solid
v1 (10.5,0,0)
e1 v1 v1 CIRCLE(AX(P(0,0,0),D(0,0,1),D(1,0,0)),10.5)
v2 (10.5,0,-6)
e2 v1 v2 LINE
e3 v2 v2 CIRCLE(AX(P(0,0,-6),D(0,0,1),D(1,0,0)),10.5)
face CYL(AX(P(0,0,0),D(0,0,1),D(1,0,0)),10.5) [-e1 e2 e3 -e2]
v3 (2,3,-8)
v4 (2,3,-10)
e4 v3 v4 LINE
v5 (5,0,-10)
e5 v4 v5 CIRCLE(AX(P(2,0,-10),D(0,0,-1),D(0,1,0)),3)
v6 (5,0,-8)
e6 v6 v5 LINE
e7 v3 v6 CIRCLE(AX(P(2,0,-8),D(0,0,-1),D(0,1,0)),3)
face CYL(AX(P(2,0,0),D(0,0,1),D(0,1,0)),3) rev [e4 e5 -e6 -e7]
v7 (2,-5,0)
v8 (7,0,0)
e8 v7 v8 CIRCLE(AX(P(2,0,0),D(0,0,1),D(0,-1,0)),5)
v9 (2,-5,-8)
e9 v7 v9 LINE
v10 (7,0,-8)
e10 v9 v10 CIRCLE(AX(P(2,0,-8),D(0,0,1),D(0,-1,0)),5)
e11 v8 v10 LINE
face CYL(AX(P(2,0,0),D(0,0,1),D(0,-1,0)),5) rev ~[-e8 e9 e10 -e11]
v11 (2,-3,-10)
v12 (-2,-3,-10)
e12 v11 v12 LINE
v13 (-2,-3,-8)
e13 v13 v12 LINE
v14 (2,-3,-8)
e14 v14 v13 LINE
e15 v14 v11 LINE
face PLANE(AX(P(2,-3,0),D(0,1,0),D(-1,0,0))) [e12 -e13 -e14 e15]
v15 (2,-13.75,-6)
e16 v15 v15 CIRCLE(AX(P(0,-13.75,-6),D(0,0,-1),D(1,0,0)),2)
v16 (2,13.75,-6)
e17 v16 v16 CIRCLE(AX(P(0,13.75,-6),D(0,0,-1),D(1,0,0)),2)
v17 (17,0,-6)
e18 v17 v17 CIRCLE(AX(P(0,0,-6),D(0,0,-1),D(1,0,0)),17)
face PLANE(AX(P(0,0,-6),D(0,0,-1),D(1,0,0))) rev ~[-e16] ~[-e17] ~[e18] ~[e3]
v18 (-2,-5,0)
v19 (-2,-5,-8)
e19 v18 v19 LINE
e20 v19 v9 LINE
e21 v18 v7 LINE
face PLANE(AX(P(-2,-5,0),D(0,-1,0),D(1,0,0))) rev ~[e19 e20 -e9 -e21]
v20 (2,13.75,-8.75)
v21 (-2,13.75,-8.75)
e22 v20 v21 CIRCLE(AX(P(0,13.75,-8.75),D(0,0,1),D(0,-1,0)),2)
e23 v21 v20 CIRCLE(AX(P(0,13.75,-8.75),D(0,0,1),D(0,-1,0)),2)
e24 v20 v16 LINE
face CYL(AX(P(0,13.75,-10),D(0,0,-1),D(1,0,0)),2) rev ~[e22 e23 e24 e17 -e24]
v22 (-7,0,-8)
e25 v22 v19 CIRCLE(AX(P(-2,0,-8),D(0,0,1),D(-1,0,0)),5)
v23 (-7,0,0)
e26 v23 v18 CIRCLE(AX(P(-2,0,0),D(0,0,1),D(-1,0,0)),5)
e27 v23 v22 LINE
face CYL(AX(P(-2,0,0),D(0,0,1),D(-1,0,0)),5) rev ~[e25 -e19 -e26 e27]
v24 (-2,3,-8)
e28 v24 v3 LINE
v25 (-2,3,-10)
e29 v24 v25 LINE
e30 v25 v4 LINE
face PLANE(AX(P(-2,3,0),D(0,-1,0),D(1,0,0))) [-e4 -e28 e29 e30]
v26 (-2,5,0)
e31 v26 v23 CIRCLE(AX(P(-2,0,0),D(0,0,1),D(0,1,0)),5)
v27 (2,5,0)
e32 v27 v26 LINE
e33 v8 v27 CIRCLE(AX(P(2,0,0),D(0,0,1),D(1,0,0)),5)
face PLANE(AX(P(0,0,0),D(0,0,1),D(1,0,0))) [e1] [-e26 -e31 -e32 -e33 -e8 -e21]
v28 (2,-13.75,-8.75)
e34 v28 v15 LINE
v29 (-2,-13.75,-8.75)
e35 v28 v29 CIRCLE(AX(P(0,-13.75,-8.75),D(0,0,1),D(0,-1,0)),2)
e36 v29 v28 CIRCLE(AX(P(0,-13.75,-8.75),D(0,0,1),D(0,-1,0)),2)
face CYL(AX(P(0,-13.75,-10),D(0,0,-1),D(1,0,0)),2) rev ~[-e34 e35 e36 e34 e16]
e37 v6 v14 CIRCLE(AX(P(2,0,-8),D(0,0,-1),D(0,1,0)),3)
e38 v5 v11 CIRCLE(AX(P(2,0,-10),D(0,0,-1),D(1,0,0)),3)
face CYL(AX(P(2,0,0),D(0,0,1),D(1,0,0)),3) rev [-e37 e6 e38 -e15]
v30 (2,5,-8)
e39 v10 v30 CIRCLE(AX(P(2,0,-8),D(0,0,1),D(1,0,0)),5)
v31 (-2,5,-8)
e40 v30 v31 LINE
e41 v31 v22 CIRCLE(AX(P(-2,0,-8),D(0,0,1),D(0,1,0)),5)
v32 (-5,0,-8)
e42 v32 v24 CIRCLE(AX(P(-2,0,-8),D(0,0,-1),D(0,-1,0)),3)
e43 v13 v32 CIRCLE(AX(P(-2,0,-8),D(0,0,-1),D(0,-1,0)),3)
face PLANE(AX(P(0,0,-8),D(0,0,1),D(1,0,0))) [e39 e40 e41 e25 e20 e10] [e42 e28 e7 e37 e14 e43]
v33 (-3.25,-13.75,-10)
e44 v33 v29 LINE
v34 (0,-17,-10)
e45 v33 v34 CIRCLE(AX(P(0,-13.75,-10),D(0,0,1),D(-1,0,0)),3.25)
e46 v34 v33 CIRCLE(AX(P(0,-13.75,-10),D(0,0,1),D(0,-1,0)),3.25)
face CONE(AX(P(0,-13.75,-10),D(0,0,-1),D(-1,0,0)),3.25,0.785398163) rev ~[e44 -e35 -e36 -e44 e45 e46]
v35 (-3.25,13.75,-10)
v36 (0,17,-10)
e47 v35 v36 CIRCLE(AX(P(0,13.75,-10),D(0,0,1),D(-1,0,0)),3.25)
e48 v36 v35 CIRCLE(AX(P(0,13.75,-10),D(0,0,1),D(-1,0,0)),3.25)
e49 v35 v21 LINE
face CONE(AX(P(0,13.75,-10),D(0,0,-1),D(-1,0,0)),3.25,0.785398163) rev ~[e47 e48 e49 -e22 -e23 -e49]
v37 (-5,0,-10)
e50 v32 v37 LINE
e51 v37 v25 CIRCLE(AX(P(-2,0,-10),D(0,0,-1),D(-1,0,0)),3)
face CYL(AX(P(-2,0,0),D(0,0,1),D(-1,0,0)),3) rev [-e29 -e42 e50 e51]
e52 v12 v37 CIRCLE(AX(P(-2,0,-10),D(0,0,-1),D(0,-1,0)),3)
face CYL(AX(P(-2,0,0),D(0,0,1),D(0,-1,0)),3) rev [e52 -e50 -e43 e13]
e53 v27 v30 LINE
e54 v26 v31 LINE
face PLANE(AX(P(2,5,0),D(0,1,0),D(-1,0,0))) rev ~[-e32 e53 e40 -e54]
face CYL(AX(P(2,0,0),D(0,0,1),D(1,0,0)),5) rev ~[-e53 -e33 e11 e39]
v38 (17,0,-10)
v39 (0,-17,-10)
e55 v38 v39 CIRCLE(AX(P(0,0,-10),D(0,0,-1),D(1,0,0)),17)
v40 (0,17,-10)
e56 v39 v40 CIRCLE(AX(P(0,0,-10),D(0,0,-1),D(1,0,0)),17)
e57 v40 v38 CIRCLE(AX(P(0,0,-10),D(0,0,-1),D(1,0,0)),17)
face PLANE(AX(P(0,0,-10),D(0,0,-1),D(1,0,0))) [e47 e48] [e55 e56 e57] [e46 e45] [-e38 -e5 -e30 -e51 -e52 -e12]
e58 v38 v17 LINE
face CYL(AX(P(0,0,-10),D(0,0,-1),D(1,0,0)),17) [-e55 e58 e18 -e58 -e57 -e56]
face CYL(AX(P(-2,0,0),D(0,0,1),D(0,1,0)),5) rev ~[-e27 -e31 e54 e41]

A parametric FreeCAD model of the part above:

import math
import FreeCAD as App
import Part
import Sketcher
from FreeCAD import Vector

doc = App.newDocument("Part")
params = doc.addObject("Spreadsheet::Sheet", "Params")
for row, (alias, value) in enumerate([
    ("sketch1_diameter", "21 mm"),
    ("sketch1_radius", "3 mm"),
    ("sketch1_width", "4 mm"),
    ("pad1_length", "10 mm"),
    ("sketch2_diameter", "34 mm"),
    ("sketch2_diameter2", "4 mm"),
    ("pad2_length", "4 mm"),
    ("sketch3_diameter", "4 mm"),
    ("hole_diameter", "4 mm"),
    ("hole_depth", "10 mm"),
    ("hole_csink_diameter", "6.5 mm"),
    ("sketch4_radius", "5 mm"),
    ("sketch4_radius2", "3 mm"),
    ("sketch4_width", "4 mm"),
    ("pocket1_length", "8 mm"),
], start=1):
    params.set(f"A{row}", alias)
    params.set(f"B{row}", "=" + value)
    params.setAlias(f"B{row}", alias)

body = doc.addObject("PartDesign::Body", "Body")

sketch1 = doc.addObject("Sketcher::SketchObject", "Sketch")
body.addObject(sketch1)
sketch1.AttachmentSupport = (doc.XY_Plane, [""])
sketch1.MapMode = "FlatFace"
sketch1.addGeometry([
    Part.Circle(Vector(0, 0, 0), Vector(0, 0, 1), 10.5),
    Part.ArcOfCircle(Part.Circle(Vector(-2, 0, 0), Vector(0, 0, 1), 3), math.radians(180), math.radians(270)),
    Part.ArcOfCircle(Part.Circle(Vector(-2, 0, 0), Vector(0, 0, 1), 3), math.radians(90), math.radians(180)),
    Part.LineSegment(Vector(-2, 3, 0), Vector(2, 3, 0)),
    Part.ArcOfCircle(Part.Circle(Vector(2, 0, 0), Vector(0, 0, 1), 3), math.radians(0), math.radians(90)),
    Part.ArcOfCircle(Part.Circle(Vector(2, 0, 0), Vector(0, 0, 1), 3), math.radians(-90), math.radians(0)),
    Part.LineSegment(Vector(2, -3, 0), Vector(-2, -3, 0)),
], False)
sketch1.addConstraint([
    Sketcher.Constraint("Tangent", 1, 1, 2, 2),
    Sketcher.Constraint("Tangent", 2, 1, 3, 1),
    Sketcher.Constraint("Tangent", 3, 2, 4, 2),
    Sketcher.Constraint("Tangent", 4, 1, 5, 2),
    Sketcher.Constraint("Tangent", 5, 1, 6, 1),
    Sketcher.Constraint("Tangent", 6, 2, 1, 2),
    Sketcher.Constraint("Horizontal", 3),
    Sketcher.Constraint("Horizontal", 6),
    Sketcher.Constraint("Coincident", 0, 3, -1, 1),
    Sketcher.Constraint("Equal", 1, 2),
    Sketcher.Constraint("Equal", 2, 4),
    Sketcher.Constraint("Symmetric", 1, 3, 4, 3, -1, 1),
    Sketcher.Constraint("PointOnObject", 1, 1, -1),
    Sketcher.Constraint("PointOnObject", 4, 1, -1),
    Sketcher.Constraint("Diameter", 0, 21.0),
    Sketcher.Constraint("Radius", 1, 3.0),
    Sketcher.Constraint("DistanceX", 3, 1, 3, 2, 4.0),
])
sketch1.setExpression("Constraints[14]", "Params.sketch1_diameter")
sketch1.setExpression("Constraints[15]", "Params.sketch1_radius")
sketch1.setExpression("Constraints[16]", "Params.sketch1_width")
pad1 = doc.addObject("PartDesign::Pad", "Pad")
body.addObject(pad1)
pad1.Profile = sketch1
pad1.setExpression("Length", "Params.pad1_length")
pad1.Reversed = True

sketch2 = doc.addObject("Sketcher::SketchObject", "Sketch001")
body.addObject(sketch2)
sketch2.AttachmentSupport = (doc.XY_Plane, [""])
sketch2.MapMode = "FlatFace"
sketch2.AttachmentOffset = App.Placement(Vector(0, 0, -10), App.Rotation())
sketch2.addGeometry([
    Part.Circle(Vector(0, 0, 0), Vector(0, 0, 1), 17),
    Part.Circle(Vector(0, 13.8, 0), Vector(0, 0, 1), 2),
    Part.Circle(Vector(0, 0, 0), Vector(0, 0, 1), 9.1),
    Part.Circle(Vector(0, -13.8, 0), Vector(0, 0, 1), 2),
], False)
sketch2.addConstraint([
    Sketcher.Constraint("Coincident", 0, 3, -1, 1),
    Sketcher.Constraint("Coincident", 2, 3, -1, 1),
    Sketcher.Constraint("Equal", 1, 3),
    Sketcher.Constraint("Symmetric", 1, 3, 3, 3, -1, 1),
    Sketcher.Constraint("PointOnObject", 1, 3, -2),
    Sketcher.Constraint("Diameter", 0, 34.0),
    Sketcher.Constraint("Diameter", 1, 4.0),
    Sketcher.Constraint("DistanceY", 3, 3, 1, 3, 27.5),
    Sketcher.Constraint("Diameter", 2, 18.260628),
])
sketch2.setExpression("Constraints[5]", "Params.sketch2_diameter")
sketch2.setExpression("Constraints[6]", "Params.sketch2_diameter2")
pad2 = doc.addObject("PartDesign::Pad", "Pad001")
body.addObject(pad2)
pad2.Profile = sketch2
pad2.setExpression("Length", "Params.pad2_length")

sketch3 = doc.addObject("Sketcher::SketchObject", "Sketch002")
body.addObject(sketch3)
sketch3.AttachmentSupport = (doc.XY_Plane, [""])
sketch3.MapMode = "FlatFace"
sketch3.AttachmentOffset = App.Placement(Vector(0, 0, -10), App.Rotation())
sketch3.addGeometry([
    Part.Circle(Vector(0, -13.8, 0), Vector(0, 0, 1), 2),
    Part.Circle(Vector(0, 13.8, 0), Vector(0, 0, 1), 2),
], False)
sketch3.addConstraint([
    Sketcher.Constraint("Equal", 0, 1),
    Sketcher.Constraint("Symmetric", 0, 3, 1, 3, -1, 1),
    Sketcher.Constraint("PointOnObject", 0, 3, -2),
    Sketcher.Constraint("Diameter", 0, 4.0),
    Sketcher.Constraint("DistanceY", 0, 3, 1, 3, 27.5),
])
sketch3.setExpression("Constraints[3]", "Params.sketch3_diameter")
doc.recompute()
hole = doc.addObject("PartDesign::Hole", "Hole")
body.addObject(hole)
hole.Profile = sketch3
hole.ThreadType = "None"
hole.setExpression("Diameter", "Params.hole_diameter")
hole.DepthType = "Dimension"
hole.setExpression("Depth", "Params.hole_depth")
hole.DrillPoint = "Angled"
hole.DrillPointAngle = 118
hole.HoleCutType = "Countersink"
hole.setExpression("HoleCutDiameter", "Params.hole_csink_diameter")
hole.HoleCutCountersinkAngle = 90
hole.Reversed = True

sketch4 = doc.addObject("Sketcher::SketchObject", "Sketch003")
body.addObject(sketch4)
sketch4.AttachmentSupport = (doc.XY_Plane, [""])
sketch4.MapMode = "FlatFace"
sketch4.addGeometry([
    Part.LineSegment(Vector(2, 5, 0), Vector(-2, 5, 0)),
    Part.ArcOfCircle(Part.Circle(Vector(-2, 0, 0), Vector(0, 0, 1), 5), math.radians(90), math.radians(180)),
    Part.ArcOfCircle(Part.Circle(Vector(-2, 0, 0), Vector(0, 0, 1), 5), math.radians(180), math.radians(270)),
    Part.LineSegment(Vector(-2, -5, 0), Vector(2, -5, 0)),
    Part.ArcOfCircle(Part.Circle(Vector(2, 0, 0), Vector(0, 0, 1), 5), math.radians(-90), math.radians(0)),
    Part.ArcOfCircle(Part.Circle(Vector(2, 0, 0), Vector(0, 0, 1), 5), math.radians(0), math.radians(90)),
    Part.ArcOfCircle(Part.Circle(Vector(2, 0, 0), Vector(0, 0, 1), 3), math.radians(-90), math.radians(90)),
    Part.LineSegment(Vector(2, -3, 0), Vector(-2, -3, 0)),
    Part.ArcOfCircle(Part.Circle(Vector(-2, 0, 0), Vector(0, 0, 1), 3), math.radians(90), math.radians(270)),
    Part.LineSegment(Vector(-2, 3, 0), Vector(2, 3, 0)),
], False)
sketch4.addConstraint([
    Sketcher.Constraint("Tangent", 0, 2, 1, 1),
    Sketcher.Constraint("Tangent", 1, 2, 2, 1),
    Sketcher.Constraint("Tangent", 2, 2, 3, 1),
    Sketcher.Constraint("Tangent", 3, 2, 4, 1),
    Sketcher.Constraint("Tangent", 4, 2, 5, 1),
    Sketcher.Constraint("Tangent", 5, 2, 0, 1),
    Sketcher.Constraint("Tangent", 6, 1, 7, 1),
    Sketcher.Constraint("Tangent", 7, 2, 8, 2),
    Sketcher.Constraint("Tangent", 8, 1, 9, 1),
    Sketcher.Constraint("Tangent", 9, 2, 6, 2),
    Sketcher.Constraint("Horizontal", 0),
    Sketcher.Constraint("Horizontal", 3),
    Sketcher.Constraint("Horizontal", 7),
    Sketcher.Constraint("Horizontal", 9),
    Sketcher.Constraint("Coincident", 6, 3, 4, 3),
    Sketcher.Constraint("Coincident", 8, 3, 1, 3),
    Sketcher.Constraint("Equal", 1, 2),
    Sketcher.Constraint("Symmetric", 1, 3, 4, 3, -1, 1),
    Sketcher.Constraint("PointOnObject", 1, 2, -1),
    Sketcher.Constraint("PointOnObject", 4, 2, -1),
    Sketcher.Constraint("Radius", 1, 5.0),
    Sketcher.Constraint("Radius", 6, 3.0),
    Sketcher.Constraint("DistanceX", 0, 2, 0, 1, 4.0),
])
sketch4.setExpression("Constraints[20]", "Params.sketch4_radius")
sketch4.setExpression("Constraints[21]", "Params.sketch4_radius2")
sketch4.setExpression("Constraints[22]", "Params.sketch4_width")
pocket1 = doc.addObject("PartDesign::Pocket", "Pocket")
body.addObject(pocket1)
pocket1.Profile = sketch4
pocket1.setExpression("Length", "Params.pocket1_length")

doc.recompute()
